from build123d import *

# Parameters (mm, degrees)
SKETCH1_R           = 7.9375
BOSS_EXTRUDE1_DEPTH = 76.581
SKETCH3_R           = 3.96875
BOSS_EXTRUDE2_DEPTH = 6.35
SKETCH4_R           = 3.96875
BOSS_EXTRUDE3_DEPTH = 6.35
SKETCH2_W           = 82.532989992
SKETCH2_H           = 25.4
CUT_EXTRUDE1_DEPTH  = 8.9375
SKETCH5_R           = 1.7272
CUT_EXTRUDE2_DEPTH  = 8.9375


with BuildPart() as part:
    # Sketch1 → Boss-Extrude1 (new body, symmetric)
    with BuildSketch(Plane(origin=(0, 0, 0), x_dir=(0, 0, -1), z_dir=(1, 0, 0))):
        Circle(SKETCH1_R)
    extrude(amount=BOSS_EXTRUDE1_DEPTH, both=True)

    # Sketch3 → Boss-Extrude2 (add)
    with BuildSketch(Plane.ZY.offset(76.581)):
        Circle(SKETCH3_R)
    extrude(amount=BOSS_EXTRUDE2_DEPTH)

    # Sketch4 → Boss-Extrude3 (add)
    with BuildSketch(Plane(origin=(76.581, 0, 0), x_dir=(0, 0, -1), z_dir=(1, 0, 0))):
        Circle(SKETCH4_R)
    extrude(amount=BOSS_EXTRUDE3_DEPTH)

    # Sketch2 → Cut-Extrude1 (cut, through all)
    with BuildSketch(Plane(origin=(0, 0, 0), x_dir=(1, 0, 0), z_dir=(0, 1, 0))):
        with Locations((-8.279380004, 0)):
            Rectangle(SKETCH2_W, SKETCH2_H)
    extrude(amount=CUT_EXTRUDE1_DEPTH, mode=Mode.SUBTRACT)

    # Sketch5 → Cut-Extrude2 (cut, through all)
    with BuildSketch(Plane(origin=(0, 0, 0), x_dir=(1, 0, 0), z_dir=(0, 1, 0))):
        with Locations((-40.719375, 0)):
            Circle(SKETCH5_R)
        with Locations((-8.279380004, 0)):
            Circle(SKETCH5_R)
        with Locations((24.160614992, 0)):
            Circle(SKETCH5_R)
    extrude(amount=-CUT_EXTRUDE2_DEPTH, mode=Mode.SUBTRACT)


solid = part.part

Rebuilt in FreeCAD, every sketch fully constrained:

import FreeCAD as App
import Part
import Sketcher
Q = App.Units.Quantity

doc = App.newDocument("Part")
body = doc.addObject("PartDesign::Body", "Body")

sketch1 = doc.addObject("Sketcher::SketchObject", "Sketch")
body.addObject(sketch1)
sketch1.AttachmentSupport = (doc.YZ_Plane, [""])
sketch1.MapMode = "FlatFace"
sketch1.addGeometry(Part.Circle(App.Vector(0, 0, 0), App.Vector(0, 0, 1), 8), False)
sketch1.addConstraint([
    Sketcher.Constraint("Coincident", 0, 3, -1, 1),
    Sketcher.Constraint("Diameter", 0, Q("0.625 in")),
])
pad1 = doc.addObject("PartDesign::Pad", "Pad")
body.addObject(pad1)
pad1.Profile = sketch1
pad1.Length = Q("6.03 in")
pad1.Midplane = True

sketch2 = doc.addObject("Sketcher::SketchObject", "Sketch001")
body.addObject(sketch2)
sketch2.AttachmentSupport = (doc.YZ_Plane, [""])
sketch2.MapMode = "FlatFace"
sketch2.AttachmentOffset = App.Placement(App.Vector(0, 0, -3.015 * 25.4), App.Rotation())
sketch2.addGeometry(Part.Circle(App.Vector(0, 0, 0), App.Vector(0, 0, 1), 4), False)
sketch2.addConstraint([
    Sketcher.Constraint("Coincident", 0, 3, -1, 1),
    Sketcher.Constraint("Diameter", 0, Q("0.3125 in")),
])
pad2 = doc.addObject("PartDesign::Pad", "Pad001")
body.addObject(pad2)
pad2.Profile = sketch2
pad2.Length = Q("0.25 in")
pad2.Reversed = True

sketch3 = doc.addObject("Sketcher::SketchObject", "Sketch002")
body.addObject(sketch3)
sketch3.AttachmentSupport = (doc.YZ_Plane, [""])
sketch3.MapMode = "FlatFace"
sketch3.AttachmentOffset = App.Placement(App.Vector(0, 0, 3.015 * 25.4), App.Rotation())
sketch3.addGeometry(Part.Circle(App.Vector(0, 0, 0), App.Vector(0, 0, 1), 4), False)
sketch3.addConstraint([
    Sketcher.Constraint("Coincident", 0, 3, -1, 1),
    Sketcher.Constraint("Diameter", 0, Q("0.3125 in")),
])
pad3 = doc.addObject("PartDesign::Pad", "Pad002")
body.addObject(pad3)
pad3.Profile = sketch3
pad3.Length = Q("0.25 in")

sketch4 = doc.addObject("Sketcher::SketchObject", "Sketch003")
body.addObject(sketch4)
sketch4.AttachmentSupport = (doc.XZ_Plane, [""])
sketch4.MapMode = "FlatFace"
sketch4.addGeometry([
    Part.LineSegment(App.Vector(-50, -13, 0), App.Vector(-50, 13, 0)),
    Part.LineSegment(App.Vector(-50, 13, 0), App.Vector(33, 13, 0)),
    Part.LineSegment(App.Vector(33, 13, 0), App.Vector(33, -13, 0)),
    Part.LineSegment(App.Vector(33, -13, 0), App.Vector(-50, -13, 0)),
], False)
sketch4.addConstraint([
    Sketcher.Constraint("Coincident", 0, 2, 1, 1),
    Sketcher.Constraint("Coincident", 1, 2, 2, 1),
    Sketcher.Constraint("Coincident", 2, 2, 3, 1),
    Sketcher.Constraint("Coincident", 3, 2, 0, 1),
    Sketcher.Constraint("Vertical", 0),
    Sketcher.Constraint("Horizontal", 1),
    Sketcher.Constraint("Vertical", 2),
    Sketcher.Constraint("Horizontal", 3),
    Sketcher.Constraint("DistanceY", 0, 1, 0, 2, Q("1 in")),
    Sketcher.Constraint("DistanceY", -1, 1, 0, 2, Q("0.5 in")),
    Sketcher.Constraint("DistanceX", 1, 1, 1, 2, Q("82.53299 mm")),
    Sketcher.Constraint("DistanceX", 0, 2, -1, 1, Q("49.545875 mm")),
])
pocket1 = doc.addObject("PartDesign::Pocket", "Pocket")
body.addObject(pocket1)
pocket1.Profile = sketch4
pocket1.Type = "ThroughAll"

sketch5 = doc.addObject("Sketcher::SketchObject", "Sketch004")
body.addObject(sketch5)
sketch5.AttachmentSupport = (doc.XZ_Plane, [""])
sketch5.MapMode = "FlatFace"
sketch5.addGeometry([
    Part.Circle(App.Vector(-40.7, 0, 0), App.Vector(0, 0, 1), 1.7),
    Part.Circle(App.Vector(-8.3, 0, 0), App.Vector(0, 0, 1), 1.7),
    Part.Circle(App.Vector(24.2, 0, 0), App.Vector(0, 0, 1), 1.7),
], False)
sketch5.addConstraint([
    Sketcher.Constraint("Equal", 0, 1),
    Sketcher.Constraint("Equal", 1, 2),
    Sketcher.Constraint("PointOnObject", 0, 3, -1),
    Sketcher.Constraint("PointOnObject", 1, 3, -1),
    Sketcher.Constraint("PointOnObject", 2, 3, -1),
    Sketcher.Constraint("Diameter", 0, Q("0.136 in")),
    Sketcher.Constraint("DistanceX", 1, 3, -1, 1, Q("8.27938 mm")),
    Sketcher.Constraint("DistanceX", 0, 3, 2, 3, Q("64.87999 mm")),
    Sketcher.Constraint("DistanceX", 0, 3, -1, 1, Q("40.719375 mm")),
])
pocket2 = doc.addObject("PartDesign::Pocket", "Pocket001")
body.addObject(pocket2)
pocket2.Profile = sketch5
pocket2.Type = "ThroughAll"
pocket2.Reversed = True

doc.recompute()
